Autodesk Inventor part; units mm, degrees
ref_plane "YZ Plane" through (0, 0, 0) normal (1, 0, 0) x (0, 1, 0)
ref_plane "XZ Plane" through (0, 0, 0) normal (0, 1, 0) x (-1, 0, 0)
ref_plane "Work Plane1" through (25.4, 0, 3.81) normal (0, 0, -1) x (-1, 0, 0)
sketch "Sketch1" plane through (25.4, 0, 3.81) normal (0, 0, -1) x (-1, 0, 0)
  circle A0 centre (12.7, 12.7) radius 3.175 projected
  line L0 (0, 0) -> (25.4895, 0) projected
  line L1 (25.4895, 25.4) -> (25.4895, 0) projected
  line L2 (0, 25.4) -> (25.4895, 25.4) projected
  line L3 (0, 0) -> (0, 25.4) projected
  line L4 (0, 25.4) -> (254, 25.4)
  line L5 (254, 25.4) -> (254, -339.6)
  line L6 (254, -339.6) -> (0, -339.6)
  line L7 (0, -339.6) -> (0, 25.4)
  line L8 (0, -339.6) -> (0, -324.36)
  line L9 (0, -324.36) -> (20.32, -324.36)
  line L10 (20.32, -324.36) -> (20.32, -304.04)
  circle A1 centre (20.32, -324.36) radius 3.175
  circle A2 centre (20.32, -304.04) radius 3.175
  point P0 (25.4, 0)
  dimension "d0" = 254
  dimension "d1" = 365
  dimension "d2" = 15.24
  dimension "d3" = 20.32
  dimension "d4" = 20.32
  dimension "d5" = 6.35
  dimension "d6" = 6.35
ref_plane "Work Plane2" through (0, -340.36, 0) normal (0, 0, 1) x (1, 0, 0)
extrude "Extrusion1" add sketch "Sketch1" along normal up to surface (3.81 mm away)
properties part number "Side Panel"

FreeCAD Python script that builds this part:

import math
import FreeCAD as App
import Part
import Sketcher
from FreeCAD import Vector
Q = App.Units.Quantity


def add_polygon(sketch, points):
    """Adds a closed chain of lines whose ends are joined by coincident constraints."""
    first, n = sketch.GeometryCount, len(points)
    for a, b in zip(points, points[1:] + points[:1]):
        sketch.addGeometry(Part.LineSegment(App.Vector(*a, 0), App.Vector(*b, 0)), False)
    for i in range(n):
        sketch.addConstraint(Sketcher.Constraint("Coincident", first + i, 2, first + (i + 1) % n, 1))

doc = App.newDocument("Part")
params = doc.addObject("Spreadsheet::Sheet", "Params")
for row, (alias, value) in enumerate([
    ("sketch1_diameter", "0.25 in"),
    ("sketch1_width", "10 in"),
    ("sketch1_height", "0.6 in"),
    ("pad1_length", "0.15 in"),
], start=1):
    params.set(f"A{row}", alias)
    params.set(f"B{row}", "=" + value)
    params.setAlias(f"B{row}", alias)

body = doc.addObject("PartDesign::Body", "Body")

# Sketch on XY plane
sketch1 = body.newObject("Sketcher::SketchObject", "Sketch")
sketch1.AttachmentSupport = (doc.getObject("XY_Plane"), [""])
sketch1.MapMode = "FlatFace"
sketch1.AttachmentOffset = App.Placement(Vector(0, 0, 0.15 * 25.4), App.Rotation())
add_polygon(sketch1, [(25.4, 25.4), (25.4, -324.36), (25.4, -339.6), (-228.6, -339.6), (-228.6, 25.4)])  # lines 0-4
sketch1.addGeometry(Part.Circle(Vector(12.7, 12.7, 0), Vector(0, 0, 1), 3.175), False)  # 5
sketch1.addGeometry(Part.ArcOfCircle(Part.Circle(Vector(5.08, -324.36, 0), Vector(0, 0, 1), 3.175), math.radians(0), math.radians(90)), False)  # 6
sketch1.addGeometry(Part.ArcOfCircle(Part.Circle(Vector(5.08, -324.36, 0), Vector(0, 0, 1), 3.175), math.radians(90), math.radians(360)), False)  # 7
sketch1.addGeometry(Part.Circle(Vector(5.08, -304.04, 0), Vector(0, 0, 1), 3.175), False)  # 8
sketch1.addConstraint([
    Sketcher.Constraint("Tangent", 6, 1, 7, 2),
    Sketcher.Constraint("Coincident", 7, 1, 6, 2),
    Sketcher.Constraint("Vertical", 0),
    Sketcher.Constraint("Vertical", 1),
    Sketcher.Constraint("Horizontal", 2),
    Sketcher.Constraint("Vertical", 3),
    Sketcher.Constraint("Horizontal", 4),
    Sketcher.Constraint("Equal", 5, 6),
    Sketcher.Constraint("Equal", 7, 8),
    Sketcher.Constraint("Horizontal", 7, 3, 0, 2),
    Sketcher.Constraint("Horizontal", 0, 2, 6, 1),
    Sketcher.Constraint("Vertical", 7, 3, 8, 3),
    Sketcher.Constraint("Vertical", 8, 3, 7, 1),
    Sketcher.Constraint("Diameter", 5, Q("0.25 in")),
    Sketcher.Constraint("DistanceX", 2, 2, 2, 1, Q("10 in")),
    Sketcher.Constraint("DistanceY", 1, 2, 1, 1, Q("0.6 in")),
    Sketcher.Constraint("DistanceY", 6, 3, 8, 3, Q("0.8 in")),
    Sketcher.Constraint("DistanceX", 6, 3, 0, 2, Q("0.8 in")),
    Sketcher.Constraint("DistanceX", -1, 1, 0, 2, Q("1 in")),
    Sketcher.Constraint("DistanceY", -1, 1, 3, 2, Q("1 in")),
    Sketcher.Constraint("DistanceY", 3, 1, 3, 2, 365.0),
    Sketcher.Constraint("DistanceX", -1, 1, 5, 3, Q("0.5 in")),
    Sketcher.Constraint("DistanceY", -1, 1, 5, 3, Q("0.5 in")),
])
sketch1.setExpression("Constraints[18]", "Params.sketch1_diameter")
sketch1.setExpression("Constraints[19]", "Params.sketch1_width")
sketch1.setExpression("Constraints[20]", "Params.sketch1_height")
pad1 = body.newObject("PartDesign::Pad", "Pad")
pad1.Profile = sketch1
pad1.setExpression("Length", "Params.pad1_length")
pad1.Reversed = True

doc.recompute()
